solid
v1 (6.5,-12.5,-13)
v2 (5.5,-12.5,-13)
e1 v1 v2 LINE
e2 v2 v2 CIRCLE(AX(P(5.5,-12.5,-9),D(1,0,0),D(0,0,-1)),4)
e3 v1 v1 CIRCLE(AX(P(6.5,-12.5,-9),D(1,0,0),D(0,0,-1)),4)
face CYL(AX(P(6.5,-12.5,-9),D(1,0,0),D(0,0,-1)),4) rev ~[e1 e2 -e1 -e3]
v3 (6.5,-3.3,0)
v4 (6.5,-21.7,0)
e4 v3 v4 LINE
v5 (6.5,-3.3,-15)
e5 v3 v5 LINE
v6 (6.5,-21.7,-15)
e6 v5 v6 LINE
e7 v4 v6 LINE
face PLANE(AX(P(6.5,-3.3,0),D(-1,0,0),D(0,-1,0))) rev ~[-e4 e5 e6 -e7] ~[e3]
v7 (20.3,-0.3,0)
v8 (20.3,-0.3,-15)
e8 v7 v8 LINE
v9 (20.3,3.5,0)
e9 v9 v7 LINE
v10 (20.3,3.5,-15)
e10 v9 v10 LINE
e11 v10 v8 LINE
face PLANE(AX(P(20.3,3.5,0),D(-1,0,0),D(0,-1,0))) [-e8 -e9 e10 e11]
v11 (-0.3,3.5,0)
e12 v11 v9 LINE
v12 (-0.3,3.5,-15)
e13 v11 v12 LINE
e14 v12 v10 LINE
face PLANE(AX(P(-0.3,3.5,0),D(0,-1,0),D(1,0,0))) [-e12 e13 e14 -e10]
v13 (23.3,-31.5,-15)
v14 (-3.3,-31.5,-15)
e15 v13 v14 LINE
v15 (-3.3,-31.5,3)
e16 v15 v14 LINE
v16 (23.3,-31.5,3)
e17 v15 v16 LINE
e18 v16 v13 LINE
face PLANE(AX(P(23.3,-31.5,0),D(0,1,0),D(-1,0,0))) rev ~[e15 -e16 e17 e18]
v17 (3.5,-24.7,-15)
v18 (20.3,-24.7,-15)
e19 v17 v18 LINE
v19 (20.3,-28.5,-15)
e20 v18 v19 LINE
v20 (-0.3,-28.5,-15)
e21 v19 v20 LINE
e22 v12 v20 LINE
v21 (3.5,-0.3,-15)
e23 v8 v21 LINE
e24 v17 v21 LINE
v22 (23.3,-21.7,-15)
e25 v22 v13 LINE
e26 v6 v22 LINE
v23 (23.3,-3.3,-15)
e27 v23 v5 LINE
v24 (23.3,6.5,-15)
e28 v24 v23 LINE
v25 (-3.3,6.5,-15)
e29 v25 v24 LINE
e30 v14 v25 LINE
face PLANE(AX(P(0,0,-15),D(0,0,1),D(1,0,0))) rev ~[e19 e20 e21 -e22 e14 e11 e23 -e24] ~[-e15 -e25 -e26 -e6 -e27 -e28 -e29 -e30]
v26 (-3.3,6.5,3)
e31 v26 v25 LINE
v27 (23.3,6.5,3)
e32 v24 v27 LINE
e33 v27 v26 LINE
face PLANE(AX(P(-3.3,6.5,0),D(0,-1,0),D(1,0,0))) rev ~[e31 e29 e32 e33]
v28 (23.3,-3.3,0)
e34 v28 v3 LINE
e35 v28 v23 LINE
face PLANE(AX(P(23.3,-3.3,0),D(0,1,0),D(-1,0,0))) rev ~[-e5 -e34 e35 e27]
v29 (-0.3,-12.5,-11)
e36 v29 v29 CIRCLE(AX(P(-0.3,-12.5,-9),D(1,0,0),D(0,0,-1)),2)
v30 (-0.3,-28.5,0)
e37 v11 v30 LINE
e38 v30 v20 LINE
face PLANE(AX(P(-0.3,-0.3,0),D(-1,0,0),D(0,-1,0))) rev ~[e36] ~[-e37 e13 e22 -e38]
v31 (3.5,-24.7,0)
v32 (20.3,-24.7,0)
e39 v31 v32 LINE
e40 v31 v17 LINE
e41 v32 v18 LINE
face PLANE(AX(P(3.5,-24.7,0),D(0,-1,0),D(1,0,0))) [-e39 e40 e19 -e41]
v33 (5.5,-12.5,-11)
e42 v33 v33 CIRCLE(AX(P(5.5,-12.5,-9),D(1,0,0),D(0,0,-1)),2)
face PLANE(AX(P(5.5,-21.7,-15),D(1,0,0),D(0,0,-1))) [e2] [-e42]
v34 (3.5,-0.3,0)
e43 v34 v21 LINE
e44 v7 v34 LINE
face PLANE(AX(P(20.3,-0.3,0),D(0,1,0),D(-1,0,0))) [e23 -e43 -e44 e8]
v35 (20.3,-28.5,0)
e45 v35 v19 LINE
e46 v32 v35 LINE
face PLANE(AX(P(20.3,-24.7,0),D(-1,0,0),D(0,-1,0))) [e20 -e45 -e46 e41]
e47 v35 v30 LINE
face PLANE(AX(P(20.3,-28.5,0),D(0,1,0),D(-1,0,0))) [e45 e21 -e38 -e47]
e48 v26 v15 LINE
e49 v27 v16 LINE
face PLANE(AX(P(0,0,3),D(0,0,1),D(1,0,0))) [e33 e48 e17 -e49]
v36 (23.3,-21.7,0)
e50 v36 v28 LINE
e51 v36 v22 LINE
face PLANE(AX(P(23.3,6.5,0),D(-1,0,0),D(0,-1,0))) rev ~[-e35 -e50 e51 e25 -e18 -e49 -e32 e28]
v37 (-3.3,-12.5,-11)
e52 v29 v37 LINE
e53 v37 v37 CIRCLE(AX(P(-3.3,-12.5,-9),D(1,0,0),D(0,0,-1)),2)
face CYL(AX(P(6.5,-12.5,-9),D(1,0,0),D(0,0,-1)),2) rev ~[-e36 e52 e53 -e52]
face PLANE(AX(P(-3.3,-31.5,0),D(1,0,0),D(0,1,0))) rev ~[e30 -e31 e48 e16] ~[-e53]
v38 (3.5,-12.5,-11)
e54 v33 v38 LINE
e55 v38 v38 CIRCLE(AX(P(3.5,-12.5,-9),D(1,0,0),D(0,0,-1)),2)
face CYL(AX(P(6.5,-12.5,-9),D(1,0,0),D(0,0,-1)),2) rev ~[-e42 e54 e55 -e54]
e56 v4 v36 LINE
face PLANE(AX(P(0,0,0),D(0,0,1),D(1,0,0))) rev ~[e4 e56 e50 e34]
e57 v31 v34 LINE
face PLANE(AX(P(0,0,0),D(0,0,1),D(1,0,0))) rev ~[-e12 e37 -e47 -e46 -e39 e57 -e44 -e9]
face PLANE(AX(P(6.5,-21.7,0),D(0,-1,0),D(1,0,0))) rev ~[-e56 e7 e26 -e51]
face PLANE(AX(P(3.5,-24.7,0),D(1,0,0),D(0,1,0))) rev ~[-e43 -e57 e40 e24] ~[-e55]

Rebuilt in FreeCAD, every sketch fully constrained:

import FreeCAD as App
import Part
import Sketcher

V = App.Vector


def add_polygon(sketch, points):
    """Adds a closed chain of lines whose ends are joined by coincident constraints."""
    first, n = sketch.GeometryCount, len(points)
    for a, b in zip(points, points[1:] + points[:1]):
        sketch.addGeometry(Part.LineSegment(App.Vector(*a, 0), App.Vector(*b, 0)), False)
    for i in range(n):
        sketch.addConstraint(Sketcher.Constraint("Coincident", first + i, 2, first + (i + 1) % n, 1))

doc = App.newDocument("Part")
body = doc.addObject("PartDesign::Body", "Body")

# Sketch on XY plane
sketch1 = doc.addObject("Sketcher::SketchObject", "Sketch")
body.addObject(sketch1)
sketch1.AttachmentSupport = (doc.XY_Plane, [""])
sketch1.MapMode = "FlatFace"
add_polygon(sketch1, [(6.5, -21.7), (6.5, -3.3), (23.3, -3.3), (23.3, 6.5), (-3.3, 6.5), (-3.3, -31.5), (23.3, -31.5), (23.3, -21.7)])  # lines 0-7
add_polygon(sketch1, [(-0.3, -28.5), (-0.3, 3.5), (20.3, 3.5), (20.3, -0.3), (3.5, -0.3), (3.5, -24.7), (20.3, -24.7), (20.3, -28.5)])  # lines 8-15
sketch1.addConstraint(Sketcher.Constraint("Vertical", 0))
sketch1.addConstraint(Sketcher.Constraint("Horizontal", 1))
sketch1.addConstraint(Sketcher.Constraint("Vertical", 2))
sketch1.addConstraint(Sketcher.Constraint("Horizontal", 3))
sketch1.addConstraint(Sketcher.Constraint("Vertical", 4))
sketch1.addConstraint(Sketcher.Constraint("Horizontal", 5))
sketch1.addConstraint(Sketcher.Constraint("Vertical", 6))
sketch1.addConstraint(Sketcher.Constraint("Horizontal", 7))
sketch1.addConstraint(Sketcher.Constraint("Vertical", 8))
sketch1.addConstraint(Sketcher.Constraint("Horizontal", 9))
sketch1.addConstraint(Sketcher.Constraint("Vertical", 10))
sketch1.addConstraint(Sketcher.Constraint("Horizontal", 11))
sketch1.addConstraint(Sketcher.Constraint("Vertical", 12))
sketch1.addConstraint(Sketcher.Constraint("Horizontal", 13))
sketch1.addConstraint(Sketcher.Constraint("Vertical", 14))
sketch1.addConstraint(Sketcher.Constraint("Horizontal", 15))
sketch1.addConstraint(Sketcher.Constraint("Vertical", 2, 2, 5, 2))
sketch1.addConstraint(Sketcher.Constraint("Vertical", 10, 2, 13, 2))
sketch1.addConstraint(Sketcher.Constraint("Equal", 7, 11))
sketch1.addConstraint(Sketcher.Constraint("Equal", 2, 6))
sketch1.addConstraint(Sketcher.Constraint("Equal", 10, 14))
sketch1.addConstraint(Sketcher.Constraint("DistanceY", 10, 2, 10, 1, 3.8))
sketch1.addConstraint(Sketcher.Constraint("DistanceY", 12, 2, 12, 1, 24.4))
sketch1.addConstraint(Sketcher.Constraint("DistanceX", 3, 2, 8, 2, 3.0))
sketch1.addConstraint(Sketcher.Constraint("DistanceY", 8, 2, 3, 2, 3.0))
sketch1.addConstraint(Sketcher.Constraint("DistanceX", 9, 2, 2, 2, 3.0))
sketch1.addConstraint(Sketcher.Constraint("DistanceY", 1, 2, 10, 2, 3.0))
sketch1.addConstraint(Sketcher.Constraint("DistanceY", 12, 2, 7, 2, 3.0))
sketch1.addConstraint(Sketcher.Constraint("DistanceX", 8, 2, -1, 1, 0.3))
sketch1.addConstraint(Sketcher.Constraint("DistanceY", 10, 2, -1, 1, 0.3))
sketch1.addConstraint(Sketcher.Constraint("DistanceX", 8, 2, 11, 2, 3.8))
sketch1.addConstraint(Sketcher.Constraint("DistanceX", 1, 1, 1, 2, 16.8))
pad1 = doc.addObject("PartDesign::Pad", "Pad")
body.addObject(pad1)
pad1.Profile = sketch1
pad1.Length = 15
pad1.Reversed = True

# Sketch on XY plane
sketch2 = doc.addObject("Sketcher::SketchObject", "Sketch001")
body.addObject(sketch2)
sketch2.AttachmentSupport = (doc.XY_Plane, [""])
sketch2.MapMode = "FlatFace"
add_polygon(sketch2, [(23.3, -31.5), (23.3, 6.5), (-3.3, 6.5), (-3.3, -31.5)])  # lines 0-3
sketch2.addConstraint(Sketcher.Constraint("Vertical", 0))
sketch2.addConstraint(Sketcher.Constraint("Horizontal", 1))
sketch2.addConstraint(Sketcher.Constraint("Vertical", 2))
sketch2.addConstraint(Sketcher.Constraint("Horizontal", 3))
sketch2.addConstraint(Sketcher.Constraint("DistanceY", 0, 1, 0, 2, 38.0))
sketch2.addConstraint(Sketcher.Constraint("DistanceX", 1, 2, 1, 1, 26.6))
sketch2.addConstraint(Sketcher.Constraint("DistanceX", -1, 1, 0, 2, 23.3))
sketch2.addConstraint(Sketcher.Constraint("DistanceY", -1, 1, 0, 2, 6.5))
pad2 = doc.addObject("PartDesign::Pad", "Pad001")
body.addObject(pad2)
pad2.Profile = sketch2
pad2.Length = 3

# Sketch on YZ plane
sketch3 = doc.addObject("Sketcher::SketchObject", "Sketch002")
body.addObject(sketch3)
sketch3.AttachmentSupport = (doc.YZ_Plane, [""])
sketch3.MapMode = "FlatFace"
sketch3.AttachmentOffset = App.Placement(V(0, 0, 6.5), App.Rotation())
sketch3.addGeometry(Part.Circle(V(-12.5, -9, 0), V(0, 0, 1), 4), False)
sketch3.addGeometry(Part.Circle(V(-12.5, -9, 0), V(0, 0, 1), 2), False)
sketch3.addConstraint(Sketcher.Constraint("Coincident", 1, 3, 0, 3))
sketch3.addConstraint(Sketcher.Constraint("Diameter", 0, 8.0))
sketch3.addConstraint(Sketcher.Constraint("Diameter", 1, 4.0))
sketch3.addConstraint(Sketcher.Constraint("DistanceY", 0, 3, -1, 1, 9.0))
sketch3.addConstraint(Sketcher.Constraint("DistanceX", 0, 3, -1, 1, 12.5))
pocket1 = doc.addObject("PartDesign::Pocket", "Pocket")
body.addObject(pocket1)
pocket1.Profile = sketch3
pocket1.Length = 1

# Sketch on YZ plane
sketch4 = doc.addObject("Sketcher::SketchObject", "Sketch003")
body.addObject(sketch4)
sketch4.AttachmentSupport = (doc.YZ_Plane, [""])
sketch4.MapMode = "FlatFace"
sketch4.AttachmentOffset = App.Placement(V(0, 0, 6.5), App.Rotation())
sketch4.addGeometry(Part.Circle(V(-12.5, -9, 0), V(0, 0, 1), 2), False)
sketch4.addConstraint(Sketcher.Constraint("Diameter", 0, 4.0))
sketch4.addConstraint(Sketcher.Constraint("DistanceY", 0, 3, -1, 1, 9.0))
sketch4.addConstraint(Sketcher.Constraint("DistanceX", 0, 3, -1, 1, 12.5))
pocket2 = doc.addObject("PartDesign::Pocket", "Pocket001")
body.addObject(pocket2)
pocket2.Profile = sketch4
pocket2.Length = 80

doc.recompute()
